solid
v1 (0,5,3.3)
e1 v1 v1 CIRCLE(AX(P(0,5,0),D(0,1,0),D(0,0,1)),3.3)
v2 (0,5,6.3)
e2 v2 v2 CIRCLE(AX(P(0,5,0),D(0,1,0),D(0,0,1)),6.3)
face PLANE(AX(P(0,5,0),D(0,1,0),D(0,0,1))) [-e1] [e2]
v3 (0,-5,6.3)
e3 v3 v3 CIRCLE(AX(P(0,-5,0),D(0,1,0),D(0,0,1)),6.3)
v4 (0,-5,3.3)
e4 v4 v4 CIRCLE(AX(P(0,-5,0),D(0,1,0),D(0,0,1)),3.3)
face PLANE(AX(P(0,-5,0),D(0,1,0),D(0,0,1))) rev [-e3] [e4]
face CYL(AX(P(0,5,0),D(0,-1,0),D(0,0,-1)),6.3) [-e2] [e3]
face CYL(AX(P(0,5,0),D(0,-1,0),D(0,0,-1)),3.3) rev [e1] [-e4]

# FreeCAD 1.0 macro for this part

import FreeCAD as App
import Part
import Sketcher
from FreeCAD import Vector

doc = App.newDocument("Part")
body = doc.addObject("PartDesign::Body", "Body")

# Sketch on XZ plane
sketch1 = body.newObject("Sketcher::SketchObject", "Sketch")
sketch1.AttachmentSupport = (doc.getObject("XZ_Plane"), [""])
sketch1.MapMode = "FlatFace"
sketch1.addGeometry(Part.Circle(Vector(0, 0, 0), Vector(0, 0, 1), 6.3), False)
sketch1.addGeometry(Part.Circle(Vector(0, 0, 0), Vector(0, 0, 1), 3.3), False)
sketch1.addConstraint(Sketcher.Constraint("Coincident", 0, 3, -1, 1))
sketch1.addConstraint(Sketcher.Constraint("Coincident", 1, 3, -1, 1))
sketch1.addConstraint(Sketcher.Constraint("Diameter", 0, 12.6))
sketch1.addConstraint(Sketcher.Constraint("Diameter", 1, 6.6))
pad1 = body.newObject("PartDesign::Pad", "Pad")
pad1.Profile = sketch1
pad1.Length = 10
pad1.Midplane = True

doc.recompute()
